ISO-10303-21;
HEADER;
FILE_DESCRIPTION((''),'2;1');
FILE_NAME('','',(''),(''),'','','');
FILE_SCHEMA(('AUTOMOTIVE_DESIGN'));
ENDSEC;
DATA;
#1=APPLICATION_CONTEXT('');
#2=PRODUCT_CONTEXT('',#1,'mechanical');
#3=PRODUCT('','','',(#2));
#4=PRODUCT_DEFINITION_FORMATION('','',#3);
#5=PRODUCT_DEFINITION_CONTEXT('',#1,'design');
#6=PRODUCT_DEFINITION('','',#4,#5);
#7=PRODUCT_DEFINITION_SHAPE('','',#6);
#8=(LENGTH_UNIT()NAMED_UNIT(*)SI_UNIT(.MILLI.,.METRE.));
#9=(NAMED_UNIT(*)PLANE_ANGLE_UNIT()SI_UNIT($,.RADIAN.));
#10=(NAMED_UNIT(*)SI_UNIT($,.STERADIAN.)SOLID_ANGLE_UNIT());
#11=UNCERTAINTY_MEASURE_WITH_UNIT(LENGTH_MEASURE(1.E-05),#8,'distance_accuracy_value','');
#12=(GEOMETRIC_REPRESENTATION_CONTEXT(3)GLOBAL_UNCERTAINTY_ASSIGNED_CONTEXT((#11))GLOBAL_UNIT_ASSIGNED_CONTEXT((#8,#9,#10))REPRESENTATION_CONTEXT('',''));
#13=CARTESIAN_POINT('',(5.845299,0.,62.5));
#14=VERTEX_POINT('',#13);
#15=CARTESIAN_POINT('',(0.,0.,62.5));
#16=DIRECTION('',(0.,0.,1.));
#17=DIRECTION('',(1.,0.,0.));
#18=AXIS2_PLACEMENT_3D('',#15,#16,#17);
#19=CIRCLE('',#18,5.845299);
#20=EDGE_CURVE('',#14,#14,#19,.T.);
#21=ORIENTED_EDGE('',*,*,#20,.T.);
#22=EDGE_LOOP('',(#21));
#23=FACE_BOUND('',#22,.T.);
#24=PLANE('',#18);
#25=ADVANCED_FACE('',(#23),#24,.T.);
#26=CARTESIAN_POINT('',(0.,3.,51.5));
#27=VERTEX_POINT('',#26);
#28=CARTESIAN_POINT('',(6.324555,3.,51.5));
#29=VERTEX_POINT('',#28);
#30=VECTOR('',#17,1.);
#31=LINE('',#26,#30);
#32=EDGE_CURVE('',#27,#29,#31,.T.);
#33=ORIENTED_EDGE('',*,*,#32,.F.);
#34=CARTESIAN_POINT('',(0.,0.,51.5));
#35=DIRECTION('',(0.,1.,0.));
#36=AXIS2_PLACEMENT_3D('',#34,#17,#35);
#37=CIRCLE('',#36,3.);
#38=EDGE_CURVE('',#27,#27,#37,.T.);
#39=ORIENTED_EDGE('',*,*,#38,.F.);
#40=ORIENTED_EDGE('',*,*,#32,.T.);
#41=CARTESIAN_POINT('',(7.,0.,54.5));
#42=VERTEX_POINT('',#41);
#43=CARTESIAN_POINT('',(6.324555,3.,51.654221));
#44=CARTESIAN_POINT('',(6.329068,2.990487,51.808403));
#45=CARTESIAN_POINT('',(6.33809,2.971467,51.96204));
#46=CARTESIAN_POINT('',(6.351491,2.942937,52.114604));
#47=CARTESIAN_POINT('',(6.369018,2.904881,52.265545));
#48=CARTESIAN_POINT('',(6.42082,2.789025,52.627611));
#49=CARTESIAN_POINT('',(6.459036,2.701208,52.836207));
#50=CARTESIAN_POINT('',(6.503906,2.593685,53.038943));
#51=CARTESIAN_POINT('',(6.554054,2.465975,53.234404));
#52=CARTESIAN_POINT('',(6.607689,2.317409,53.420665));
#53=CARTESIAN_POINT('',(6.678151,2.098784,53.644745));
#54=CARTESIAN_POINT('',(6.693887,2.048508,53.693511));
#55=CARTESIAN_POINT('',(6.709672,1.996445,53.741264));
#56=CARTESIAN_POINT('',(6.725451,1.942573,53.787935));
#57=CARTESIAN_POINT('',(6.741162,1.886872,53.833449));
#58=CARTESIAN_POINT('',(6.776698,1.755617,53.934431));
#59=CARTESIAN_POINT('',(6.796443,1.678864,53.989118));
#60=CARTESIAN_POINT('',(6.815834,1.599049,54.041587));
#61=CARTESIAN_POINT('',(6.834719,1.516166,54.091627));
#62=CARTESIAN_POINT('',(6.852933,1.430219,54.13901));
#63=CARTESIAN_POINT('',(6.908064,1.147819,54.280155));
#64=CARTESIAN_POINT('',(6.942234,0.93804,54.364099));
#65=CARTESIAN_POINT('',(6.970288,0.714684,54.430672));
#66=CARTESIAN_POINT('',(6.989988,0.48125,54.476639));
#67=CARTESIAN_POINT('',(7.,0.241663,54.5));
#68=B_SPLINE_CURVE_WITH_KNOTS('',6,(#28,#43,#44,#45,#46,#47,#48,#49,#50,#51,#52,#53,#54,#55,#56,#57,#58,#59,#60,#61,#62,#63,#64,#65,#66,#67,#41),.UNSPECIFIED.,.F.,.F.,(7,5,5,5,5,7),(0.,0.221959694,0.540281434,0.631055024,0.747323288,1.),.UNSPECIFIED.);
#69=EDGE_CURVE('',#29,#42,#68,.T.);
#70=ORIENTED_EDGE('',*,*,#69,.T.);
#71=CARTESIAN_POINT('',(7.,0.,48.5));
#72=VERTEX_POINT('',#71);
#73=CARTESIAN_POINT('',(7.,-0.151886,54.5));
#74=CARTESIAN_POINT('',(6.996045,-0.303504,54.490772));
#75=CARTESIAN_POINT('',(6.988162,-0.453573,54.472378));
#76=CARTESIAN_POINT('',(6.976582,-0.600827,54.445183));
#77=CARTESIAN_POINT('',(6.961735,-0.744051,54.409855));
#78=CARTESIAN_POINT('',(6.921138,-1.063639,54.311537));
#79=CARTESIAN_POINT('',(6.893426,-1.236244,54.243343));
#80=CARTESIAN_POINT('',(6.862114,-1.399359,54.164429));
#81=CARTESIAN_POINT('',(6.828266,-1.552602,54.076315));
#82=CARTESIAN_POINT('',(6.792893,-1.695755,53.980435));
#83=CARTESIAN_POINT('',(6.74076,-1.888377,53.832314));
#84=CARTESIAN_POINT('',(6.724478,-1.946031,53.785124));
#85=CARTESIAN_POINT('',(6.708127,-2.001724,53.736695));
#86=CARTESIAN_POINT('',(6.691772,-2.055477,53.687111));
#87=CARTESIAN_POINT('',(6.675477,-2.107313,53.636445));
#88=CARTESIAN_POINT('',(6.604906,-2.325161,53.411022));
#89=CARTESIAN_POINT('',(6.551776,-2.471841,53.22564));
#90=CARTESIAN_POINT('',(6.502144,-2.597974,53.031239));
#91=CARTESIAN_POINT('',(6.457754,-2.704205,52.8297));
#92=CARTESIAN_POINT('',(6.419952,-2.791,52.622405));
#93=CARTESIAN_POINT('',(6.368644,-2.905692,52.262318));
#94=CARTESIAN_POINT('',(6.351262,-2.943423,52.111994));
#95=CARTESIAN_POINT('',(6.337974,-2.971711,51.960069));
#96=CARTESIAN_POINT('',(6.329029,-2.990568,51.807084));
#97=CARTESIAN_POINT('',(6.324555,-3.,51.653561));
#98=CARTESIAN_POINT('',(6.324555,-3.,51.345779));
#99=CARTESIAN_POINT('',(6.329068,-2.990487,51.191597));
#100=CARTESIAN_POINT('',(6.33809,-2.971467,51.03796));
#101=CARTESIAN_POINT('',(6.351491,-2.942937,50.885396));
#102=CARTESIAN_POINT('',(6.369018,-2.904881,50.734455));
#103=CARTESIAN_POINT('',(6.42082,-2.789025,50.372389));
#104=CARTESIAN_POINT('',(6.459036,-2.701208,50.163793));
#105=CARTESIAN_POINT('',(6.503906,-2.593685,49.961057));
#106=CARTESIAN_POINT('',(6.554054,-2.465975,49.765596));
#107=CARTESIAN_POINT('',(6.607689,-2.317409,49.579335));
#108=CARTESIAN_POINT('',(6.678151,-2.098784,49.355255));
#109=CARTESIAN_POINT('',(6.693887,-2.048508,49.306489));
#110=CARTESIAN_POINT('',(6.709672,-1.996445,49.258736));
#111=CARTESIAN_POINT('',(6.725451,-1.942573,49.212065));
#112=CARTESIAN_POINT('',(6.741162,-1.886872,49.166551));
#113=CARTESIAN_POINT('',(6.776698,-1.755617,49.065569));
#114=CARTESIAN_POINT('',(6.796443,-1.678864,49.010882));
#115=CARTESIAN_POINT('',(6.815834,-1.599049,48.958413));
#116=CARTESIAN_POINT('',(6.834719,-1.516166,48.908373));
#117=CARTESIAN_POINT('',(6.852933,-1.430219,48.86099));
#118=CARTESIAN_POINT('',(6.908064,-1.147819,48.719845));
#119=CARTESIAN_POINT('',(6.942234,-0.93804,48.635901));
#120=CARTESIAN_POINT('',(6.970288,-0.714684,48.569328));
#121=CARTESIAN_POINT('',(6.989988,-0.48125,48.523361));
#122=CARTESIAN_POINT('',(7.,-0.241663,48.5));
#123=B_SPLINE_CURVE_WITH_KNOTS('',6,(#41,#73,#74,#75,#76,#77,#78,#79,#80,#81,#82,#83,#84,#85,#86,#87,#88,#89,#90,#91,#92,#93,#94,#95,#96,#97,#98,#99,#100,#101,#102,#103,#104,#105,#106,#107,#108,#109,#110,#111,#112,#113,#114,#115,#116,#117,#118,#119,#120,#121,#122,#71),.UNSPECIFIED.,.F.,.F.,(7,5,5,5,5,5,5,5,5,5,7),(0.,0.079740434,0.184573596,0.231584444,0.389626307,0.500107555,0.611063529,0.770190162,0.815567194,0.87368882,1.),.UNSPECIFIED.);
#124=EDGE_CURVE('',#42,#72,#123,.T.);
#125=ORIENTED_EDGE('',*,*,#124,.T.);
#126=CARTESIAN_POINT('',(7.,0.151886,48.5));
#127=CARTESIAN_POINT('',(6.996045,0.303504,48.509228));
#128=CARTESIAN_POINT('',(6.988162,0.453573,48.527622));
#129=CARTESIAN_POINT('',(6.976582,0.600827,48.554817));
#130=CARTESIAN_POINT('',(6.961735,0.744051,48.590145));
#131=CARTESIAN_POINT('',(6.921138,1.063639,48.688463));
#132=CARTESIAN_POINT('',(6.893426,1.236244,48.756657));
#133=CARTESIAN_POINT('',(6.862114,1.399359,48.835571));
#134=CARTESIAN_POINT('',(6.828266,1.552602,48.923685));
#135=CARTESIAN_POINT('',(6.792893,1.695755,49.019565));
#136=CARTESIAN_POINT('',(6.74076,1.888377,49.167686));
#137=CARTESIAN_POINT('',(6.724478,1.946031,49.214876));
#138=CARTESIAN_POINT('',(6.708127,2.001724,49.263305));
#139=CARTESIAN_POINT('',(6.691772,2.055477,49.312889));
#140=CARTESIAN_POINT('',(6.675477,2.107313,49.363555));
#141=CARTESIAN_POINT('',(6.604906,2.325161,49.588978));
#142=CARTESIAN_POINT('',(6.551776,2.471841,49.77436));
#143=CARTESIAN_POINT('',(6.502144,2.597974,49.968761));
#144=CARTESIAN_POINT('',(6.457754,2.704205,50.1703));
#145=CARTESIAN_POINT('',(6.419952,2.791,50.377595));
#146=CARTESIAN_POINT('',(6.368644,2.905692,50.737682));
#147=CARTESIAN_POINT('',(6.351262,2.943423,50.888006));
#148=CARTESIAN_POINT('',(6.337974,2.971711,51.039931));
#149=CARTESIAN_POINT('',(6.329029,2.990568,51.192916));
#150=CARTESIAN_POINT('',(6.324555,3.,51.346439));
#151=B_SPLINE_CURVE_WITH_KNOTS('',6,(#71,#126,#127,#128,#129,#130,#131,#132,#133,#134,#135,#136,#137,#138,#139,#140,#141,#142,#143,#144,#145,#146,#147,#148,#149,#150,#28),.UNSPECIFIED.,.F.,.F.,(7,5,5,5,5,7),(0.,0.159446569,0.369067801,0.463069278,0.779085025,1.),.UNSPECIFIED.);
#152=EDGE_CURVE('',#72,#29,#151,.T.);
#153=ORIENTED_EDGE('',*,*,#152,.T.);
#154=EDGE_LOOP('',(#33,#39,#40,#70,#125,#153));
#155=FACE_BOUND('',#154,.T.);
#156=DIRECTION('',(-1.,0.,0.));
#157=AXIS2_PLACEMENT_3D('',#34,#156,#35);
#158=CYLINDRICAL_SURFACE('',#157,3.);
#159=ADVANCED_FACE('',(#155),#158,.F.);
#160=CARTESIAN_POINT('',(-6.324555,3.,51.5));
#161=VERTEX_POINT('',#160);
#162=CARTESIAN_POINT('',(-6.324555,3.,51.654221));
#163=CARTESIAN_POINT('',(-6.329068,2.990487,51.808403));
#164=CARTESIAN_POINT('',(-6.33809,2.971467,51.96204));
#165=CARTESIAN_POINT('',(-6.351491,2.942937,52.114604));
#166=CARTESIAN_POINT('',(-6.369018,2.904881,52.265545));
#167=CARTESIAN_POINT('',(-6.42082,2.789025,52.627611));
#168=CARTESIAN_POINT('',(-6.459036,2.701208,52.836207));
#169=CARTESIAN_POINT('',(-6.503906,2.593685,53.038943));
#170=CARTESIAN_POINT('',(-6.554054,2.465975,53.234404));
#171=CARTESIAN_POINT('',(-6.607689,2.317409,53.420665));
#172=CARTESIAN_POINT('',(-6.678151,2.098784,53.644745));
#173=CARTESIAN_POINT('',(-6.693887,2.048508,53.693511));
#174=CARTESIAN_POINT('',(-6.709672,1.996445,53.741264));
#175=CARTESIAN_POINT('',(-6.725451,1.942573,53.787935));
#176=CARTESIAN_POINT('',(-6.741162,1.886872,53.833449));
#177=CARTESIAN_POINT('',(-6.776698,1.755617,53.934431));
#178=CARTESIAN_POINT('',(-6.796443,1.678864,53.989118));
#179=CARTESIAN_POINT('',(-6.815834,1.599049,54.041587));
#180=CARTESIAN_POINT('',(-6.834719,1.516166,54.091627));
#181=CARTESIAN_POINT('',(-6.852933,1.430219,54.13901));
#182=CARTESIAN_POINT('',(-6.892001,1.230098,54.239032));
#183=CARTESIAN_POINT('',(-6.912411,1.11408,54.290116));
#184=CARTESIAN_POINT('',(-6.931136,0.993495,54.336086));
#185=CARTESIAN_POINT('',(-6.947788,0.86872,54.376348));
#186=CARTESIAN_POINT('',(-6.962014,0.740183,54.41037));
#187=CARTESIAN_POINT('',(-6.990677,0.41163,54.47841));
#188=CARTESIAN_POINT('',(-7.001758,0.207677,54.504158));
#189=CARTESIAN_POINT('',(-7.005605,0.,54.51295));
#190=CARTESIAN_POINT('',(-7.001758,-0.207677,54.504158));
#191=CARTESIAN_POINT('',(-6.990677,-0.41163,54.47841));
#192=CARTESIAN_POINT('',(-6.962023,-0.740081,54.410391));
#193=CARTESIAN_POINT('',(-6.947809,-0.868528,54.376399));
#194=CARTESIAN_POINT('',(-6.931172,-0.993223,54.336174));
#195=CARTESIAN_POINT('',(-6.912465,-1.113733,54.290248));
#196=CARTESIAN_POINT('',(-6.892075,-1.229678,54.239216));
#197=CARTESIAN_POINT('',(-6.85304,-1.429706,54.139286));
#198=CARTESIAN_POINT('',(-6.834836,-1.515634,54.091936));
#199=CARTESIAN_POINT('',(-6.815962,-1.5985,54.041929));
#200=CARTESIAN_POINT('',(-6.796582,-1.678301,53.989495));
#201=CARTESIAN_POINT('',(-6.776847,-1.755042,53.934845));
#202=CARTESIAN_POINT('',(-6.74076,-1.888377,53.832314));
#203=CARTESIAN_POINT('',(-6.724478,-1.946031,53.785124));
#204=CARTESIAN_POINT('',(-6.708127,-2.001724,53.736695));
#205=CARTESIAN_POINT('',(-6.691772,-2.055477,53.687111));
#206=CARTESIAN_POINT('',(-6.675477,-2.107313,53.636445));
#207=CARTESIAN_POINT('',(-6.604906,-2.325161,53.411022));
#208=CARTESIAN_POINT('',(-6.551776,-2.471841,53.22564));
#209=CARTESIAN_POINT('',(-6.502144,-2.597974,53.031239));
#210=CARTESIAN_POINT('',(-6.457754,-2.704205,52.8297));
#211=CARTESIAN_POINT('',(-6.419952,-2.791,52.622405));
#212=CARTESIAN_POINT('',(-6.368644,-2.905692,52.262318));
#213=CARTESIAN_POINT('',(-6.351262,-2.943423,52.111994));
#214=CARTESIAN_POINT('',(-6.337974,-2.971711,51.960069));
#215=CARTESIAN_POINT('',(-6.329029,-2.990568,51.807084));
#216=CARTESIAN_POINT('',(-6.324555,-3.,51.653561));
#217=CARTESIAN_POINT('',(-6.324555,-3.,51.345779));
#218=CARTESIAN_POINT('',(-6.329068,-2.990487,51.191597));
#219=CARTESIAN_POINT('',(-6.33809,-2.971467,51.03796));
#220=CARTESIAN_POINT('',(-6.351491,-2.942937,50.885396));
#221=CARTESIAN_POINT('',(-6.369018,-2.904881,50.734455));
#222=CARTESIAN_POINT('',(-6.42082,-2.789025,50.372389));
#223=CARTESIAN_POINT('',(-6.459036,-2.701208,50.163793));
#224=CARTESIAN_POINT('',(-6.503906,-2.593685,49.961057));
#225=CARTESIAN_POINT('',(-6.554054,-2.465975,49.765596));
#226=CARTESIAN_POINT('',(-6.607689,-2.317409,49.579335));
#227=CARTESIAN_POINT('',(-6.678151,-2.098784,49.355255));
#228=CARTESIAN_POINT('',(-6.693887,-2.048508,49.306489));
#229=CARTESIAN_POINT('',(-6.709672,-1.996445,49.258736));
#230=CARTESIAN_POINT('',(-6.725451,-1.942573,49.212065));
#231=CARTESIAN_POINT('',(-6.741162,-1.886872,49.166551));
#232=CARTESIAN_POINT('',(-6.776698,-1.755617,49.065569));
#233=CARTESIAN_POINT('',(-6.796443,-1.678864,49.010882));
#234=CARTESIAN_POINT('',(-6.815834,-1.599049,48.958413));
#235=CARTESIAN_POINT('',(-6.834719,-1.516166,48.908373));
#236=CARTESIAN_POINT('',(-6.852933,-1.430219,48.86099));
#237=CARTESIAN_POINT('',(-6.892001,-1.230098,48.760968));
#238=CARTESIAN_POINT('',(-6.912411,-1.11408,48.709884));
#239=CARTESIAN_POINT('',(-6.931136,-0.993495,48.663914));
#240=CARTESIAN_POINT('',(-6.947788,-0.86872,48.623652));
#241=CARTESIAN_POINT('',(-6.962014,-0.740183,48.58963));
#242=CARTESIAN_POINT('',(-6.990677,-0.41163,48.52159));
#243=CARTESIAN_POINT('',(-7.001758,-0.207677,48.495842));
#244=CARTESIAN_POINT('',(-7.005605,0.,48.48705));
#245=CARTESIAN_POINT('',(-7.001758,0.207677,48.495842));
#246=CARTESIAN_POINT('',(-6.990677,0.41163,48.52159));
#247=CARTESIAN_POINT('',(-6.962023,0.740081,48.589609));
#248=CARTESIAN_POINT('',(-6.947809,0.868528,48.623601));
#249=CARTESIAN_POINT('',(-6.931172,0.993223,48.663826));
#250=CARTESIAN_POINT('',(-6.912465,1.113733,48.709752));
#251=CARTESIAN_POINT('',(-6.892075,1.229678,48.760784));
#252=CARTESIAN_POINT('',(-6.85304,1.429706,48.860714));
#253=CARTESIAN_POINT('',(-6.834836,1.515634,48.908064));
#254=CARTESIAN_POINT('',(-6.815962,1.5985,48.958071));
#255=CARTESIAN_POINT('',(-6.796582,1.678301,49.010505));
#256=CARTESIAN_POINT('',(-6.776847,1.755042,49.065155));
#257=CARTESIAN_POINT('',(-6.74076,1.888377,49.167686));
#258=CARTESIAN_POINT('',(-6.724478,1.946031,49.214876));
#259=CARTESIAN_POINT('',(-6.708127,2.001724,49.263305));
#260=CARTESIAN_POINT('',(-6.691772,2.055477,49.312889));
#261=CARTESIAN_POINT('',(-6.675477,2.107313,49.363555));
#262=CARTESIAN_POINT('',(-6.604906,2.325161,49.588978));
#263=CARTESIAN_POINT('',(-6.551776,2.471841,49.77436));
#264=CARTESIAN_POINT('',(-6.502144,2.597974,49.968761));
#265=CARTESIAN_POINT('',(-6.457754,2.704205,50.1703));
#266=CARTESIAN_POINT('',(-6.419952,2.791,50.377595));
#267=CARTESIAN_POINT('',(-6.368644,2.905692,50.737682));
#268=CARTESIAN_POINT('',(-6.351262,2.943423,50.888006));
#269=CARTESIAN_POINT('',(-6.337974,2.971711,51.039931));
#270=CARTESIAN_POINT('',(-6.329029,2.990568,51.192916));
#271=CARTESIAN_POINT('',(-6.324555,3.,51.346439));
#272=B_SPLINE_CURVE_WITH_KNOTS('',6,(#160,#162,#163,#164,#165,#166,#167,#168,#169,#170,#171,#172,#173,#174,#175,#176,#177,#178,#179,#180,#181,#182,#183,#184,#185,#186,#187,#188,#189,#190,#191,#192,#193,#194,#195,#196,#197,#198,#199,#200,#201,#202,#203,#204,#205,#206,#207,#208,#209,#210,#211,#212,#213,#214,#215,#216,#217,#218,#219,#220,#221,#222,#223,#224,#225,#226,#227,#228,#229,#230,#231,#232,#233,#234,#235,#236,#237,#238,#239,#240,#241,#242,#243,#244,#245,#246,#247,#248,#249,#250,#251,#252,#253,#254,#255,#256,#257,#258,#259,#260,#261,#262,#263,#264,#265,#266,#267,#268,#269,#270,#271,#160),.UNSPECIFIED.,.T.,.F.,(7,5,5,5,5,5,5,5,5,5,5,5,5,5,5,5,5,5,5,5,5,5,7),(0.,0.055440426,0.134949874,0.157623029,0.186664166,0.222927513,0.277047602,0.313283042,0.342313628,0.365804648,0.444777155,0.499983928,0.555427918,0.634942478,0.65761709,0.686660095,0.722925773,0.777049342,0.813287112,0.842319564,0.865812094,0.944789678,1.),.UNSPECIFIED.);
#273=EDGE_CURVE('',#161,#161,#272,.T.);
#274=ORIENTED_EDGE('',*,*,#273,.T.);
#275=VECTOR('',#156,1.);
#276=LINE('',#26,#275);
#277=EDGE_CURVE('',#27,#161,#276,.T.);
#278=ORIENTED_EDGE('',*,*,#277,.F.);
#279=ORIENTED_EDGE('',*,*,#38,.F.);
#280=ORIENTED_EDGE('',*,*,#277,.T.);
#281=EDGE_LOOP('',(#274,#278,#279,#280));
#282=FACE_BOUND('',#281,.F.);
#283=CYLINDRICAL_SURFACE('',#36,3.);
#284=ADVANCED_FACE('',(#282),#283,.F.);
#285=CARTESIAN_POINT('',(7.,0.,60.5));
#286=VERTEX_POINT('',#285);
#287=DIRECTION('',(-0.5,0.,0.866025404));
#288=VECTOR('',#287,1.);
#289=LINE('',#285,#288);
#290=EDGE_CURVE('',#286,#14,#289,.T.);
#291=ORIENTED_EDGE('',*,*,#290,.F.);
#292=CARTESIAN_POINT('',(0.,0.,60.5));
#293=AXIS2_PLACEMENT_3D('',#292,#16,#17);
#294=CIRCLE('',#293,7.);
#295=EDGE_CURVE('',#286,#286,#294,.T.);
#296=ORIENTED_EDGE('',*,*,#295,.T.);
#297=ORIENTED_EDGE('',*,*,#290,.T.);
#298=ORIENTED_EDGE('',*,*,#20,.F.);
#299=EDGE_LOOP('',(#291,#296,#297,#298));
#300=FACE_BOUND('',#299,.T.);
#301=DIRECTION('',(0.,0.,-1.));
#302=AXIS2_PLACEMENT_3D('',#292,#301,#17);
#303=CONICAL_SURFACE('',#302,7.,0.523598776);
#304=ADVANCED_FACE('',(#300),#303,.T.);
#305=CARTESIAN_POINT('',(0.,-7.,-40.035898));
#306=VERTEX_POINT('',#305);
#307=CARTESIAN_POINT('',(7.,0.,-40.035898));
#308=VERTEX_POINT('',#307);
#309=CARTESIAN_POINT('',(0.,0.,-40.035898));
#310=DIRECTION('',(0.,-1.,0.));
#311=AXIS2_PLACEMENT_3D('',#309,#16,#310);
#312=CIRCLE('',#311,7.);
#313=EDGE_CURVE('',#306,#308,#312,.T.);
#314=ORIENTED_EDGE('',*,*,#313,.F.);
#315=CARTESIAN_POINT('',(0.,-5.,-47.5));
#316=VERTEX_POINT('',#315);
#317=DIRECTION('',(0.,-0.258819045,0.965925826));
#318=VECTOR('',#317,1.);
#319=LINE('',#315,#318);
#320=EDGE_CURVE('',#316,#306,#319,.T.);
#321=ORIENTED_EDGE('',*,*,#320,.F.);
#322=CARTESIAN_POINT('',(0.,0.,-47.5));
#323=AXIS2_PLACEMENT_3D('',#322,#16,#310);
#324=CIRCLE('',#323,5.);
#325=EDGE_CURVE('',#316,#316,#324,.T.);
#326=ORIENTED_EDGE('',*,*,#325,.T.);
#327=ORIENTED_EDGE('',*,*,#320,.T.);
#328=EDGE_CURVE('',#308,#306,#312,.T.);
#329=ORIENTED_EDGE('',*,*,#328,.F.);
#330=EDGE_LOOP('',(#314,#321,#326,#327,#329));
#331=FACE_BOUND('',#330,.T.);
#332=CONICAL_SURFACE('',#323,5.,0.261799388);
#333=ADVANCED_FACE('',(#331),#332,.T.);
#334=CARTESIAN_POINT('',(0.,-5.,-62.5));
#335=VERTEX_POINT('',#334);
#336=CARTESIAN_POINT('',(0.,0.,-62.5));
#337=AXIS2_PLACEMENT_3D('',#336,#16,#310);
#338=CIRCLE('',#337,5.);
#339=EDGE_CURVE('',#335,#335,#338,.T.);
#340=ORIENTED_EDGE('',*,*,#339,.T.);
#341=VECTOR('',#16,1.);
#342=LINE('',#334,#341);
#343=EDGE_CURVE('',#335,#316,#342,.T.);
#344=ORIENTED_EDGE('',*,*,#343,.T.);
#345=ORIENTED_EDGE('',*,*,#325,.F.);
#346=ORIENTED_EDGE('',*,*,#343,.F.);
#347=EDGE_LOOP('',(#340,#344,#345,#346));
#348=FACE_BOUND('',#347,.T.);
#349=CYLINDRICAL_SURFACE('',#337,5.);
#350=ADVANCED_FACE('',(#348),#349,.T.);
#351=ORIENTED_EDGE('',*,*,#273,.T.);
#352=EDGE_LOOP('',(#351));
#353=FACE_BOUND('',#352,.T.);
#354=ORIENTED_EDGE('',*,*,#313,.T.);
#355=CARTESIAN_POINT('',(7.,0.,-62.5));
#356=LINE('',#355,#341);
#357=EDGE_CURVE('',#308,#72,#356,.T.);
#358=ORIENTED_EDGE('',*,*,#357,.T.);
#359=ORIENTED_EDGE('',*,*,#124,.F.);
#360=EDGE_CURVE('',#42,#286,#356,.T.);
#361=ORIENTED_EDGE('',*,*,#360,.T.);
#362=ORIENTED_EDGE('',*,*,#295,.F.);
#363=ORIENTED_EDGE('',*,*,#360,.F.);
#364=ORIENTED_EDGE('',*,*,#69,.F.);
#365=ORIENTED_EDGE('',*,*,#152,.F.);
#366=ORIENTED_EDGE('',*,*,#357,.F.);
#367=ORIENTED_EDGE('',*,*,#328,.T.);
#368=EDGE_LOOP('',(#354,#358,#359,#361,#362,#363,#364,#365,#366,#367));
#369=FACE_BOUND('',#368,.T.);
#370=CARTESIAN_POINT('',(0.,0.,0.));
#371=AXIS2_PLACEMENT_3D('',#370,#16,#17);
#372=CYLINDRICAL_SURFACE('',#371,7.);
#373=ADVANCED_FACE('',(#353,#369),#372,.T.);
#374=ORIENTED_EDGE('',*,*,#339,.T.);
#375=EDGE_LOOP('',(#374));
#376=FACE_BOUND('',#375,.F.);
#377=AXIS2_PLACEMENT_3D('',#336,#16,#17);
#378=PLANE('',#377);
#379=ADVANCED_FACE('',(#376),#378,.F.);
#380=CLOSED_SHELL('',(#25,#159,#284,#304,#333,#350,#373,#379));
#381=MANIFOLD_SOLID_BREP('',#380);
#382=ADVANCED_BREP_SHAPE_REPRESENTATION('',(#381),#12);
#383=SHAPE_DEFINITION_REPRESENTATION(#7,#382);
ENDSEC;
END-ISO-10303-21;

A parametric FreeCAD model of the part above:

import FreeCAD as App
import Part
import Sketcher
Q = App.Units.Quantity


def edges_at(feature, points):
    """Names of the edges that pass closest to the given points."""
    edges = feature.Shape.Edges
    near = lambda p: min(range(len(edges)), key=lambda i: edges[i].distToShape(Part.Vertex(*p))[0])
    return sorted({f"Edge{near(p) + 1}" for p in points})


def add_polygon(sketch, points):
    """Adds a closed chain of lines whose ends are joined by coincident constraints."""
    first, n = sketch.GeometryCount, len(points)
    for a, b in zip(points, points[1:] + points[:1]):
        sketch.addGeometry(Part.LineSegment(App.Vector(*a, 0), App.Vector(*b, 0)), False)
    for i in range(n):
        sketch.addConstraint(Sketcher.Constraint("Coincident", first + i, 2, first + (i + 1) % n, 1))

doc = App.newDocument("Part")
body = doc.addObject("PartDesign::Body", "Body")

# Sketch on XY plane
sketch1 = body.newObject("Sketcher::SketchObject", "Sketch")
sketch1.AttachmentSupport = (doc.getObject("XY_Plane"), [""])
sketch1.MapMode = "FlatFace"
sketch1.addGeometry(Part.Circle(App.Vector(0, 0, 0), App.Vector(0, 0, 1), 7), False)
sketch1.addConstraint([
    Sketcher.Constraint("Coincident", 0, 3, -1, 1),
    Sketcher.Constraint("Diameter", 0, Q("14 mm")),
])
pad1 = body.newObject("PartDesign::Pad", "Pad")
pad1.Profile = sketch1
pad1.Length = 125
pad1.Midplane = True

# Sketch on YZ plane
sketch2 = body.newObject("Sketcher::SketchObject", "Sketch001")
sketch2.AttachmentSupport = (doc.getObject("YZ_Plane"), [""])
sketch2.MapMode = "FlatFace"
sketch2.addGeometry(Part.Circle(App.Vector(0, 51.5, 0), App.Vector(0, 0, 1), 3), False)
sketch2.addConstraint([
    Sketcher.Constraint("PointOnObject", 0, 3, -2),
    Sketcher.Constraint("Diameter", 0, Q("6 mm")),
    Sketcher.Constraint("DistanceY", -1, 1, 0, 3, Q("51.5 mm")),
])
pocket1 = body.newObject("PartDesign::Pocket", "Pocket")
pocket1.Profile = sketch2
pocket1.Type = "ThroughAll"
pocket1.Midplane = True

# Sketch on YZ plane
sketch3 = body.newObject("Sketcher::SketchObject", "Sketch002")
sketch3.AttachmentSupport = (doc.getObject("YZ_Plane"), [""])
sketch3.MapMode = "FlatFace"
add_polygon(sketch3, [(-5, -47.5), (-7, -40), (-7, -62.5), (-5, -62.5)])  # lines 0-3
sketch3.addConstraint([
    Sketcher.Constraint("Vertical", 1),
    Sketcher.Constraint("Horizontal", 2),
    Sketcher.Constraint("Vertical", 3),
    Sketcher.Constraint("DistanceX", 2, 1, 2, 2, Q("2 mm")),
    Sketcher.Constraint("DistanceY", 3, 1, 3, 2, Q("15 mm")),
    Sketcher.Constraint("Angle", 0, Q("105 deg")),
    Sketcher.Constraint("DistanceX", 0, 2, -1, 1, Q("7 mm")),
    Sketcher.Constraint("DistanceY", 1, 2, -1, 1, Q("62.5 mm")),
])
groove = body.newObject("PartDesign::Groove", "Groove")
groove.Profile = sketch3
groove.ReferenceAxis = (sketch3, ["V_Axis"])
groove.Angle = 360
doc.recompute()

chamfer = body.newObject("PartDesign::Chamfer", "Chamfer")
chamfer.Base = (groove, edges_at(groove, [(-7, 0, 62.5)]))
chamfer.ChamferType = "Two distances"
chamfer.Size = 2
chamfer.Size2 = 1.154701

doc.recompute()
